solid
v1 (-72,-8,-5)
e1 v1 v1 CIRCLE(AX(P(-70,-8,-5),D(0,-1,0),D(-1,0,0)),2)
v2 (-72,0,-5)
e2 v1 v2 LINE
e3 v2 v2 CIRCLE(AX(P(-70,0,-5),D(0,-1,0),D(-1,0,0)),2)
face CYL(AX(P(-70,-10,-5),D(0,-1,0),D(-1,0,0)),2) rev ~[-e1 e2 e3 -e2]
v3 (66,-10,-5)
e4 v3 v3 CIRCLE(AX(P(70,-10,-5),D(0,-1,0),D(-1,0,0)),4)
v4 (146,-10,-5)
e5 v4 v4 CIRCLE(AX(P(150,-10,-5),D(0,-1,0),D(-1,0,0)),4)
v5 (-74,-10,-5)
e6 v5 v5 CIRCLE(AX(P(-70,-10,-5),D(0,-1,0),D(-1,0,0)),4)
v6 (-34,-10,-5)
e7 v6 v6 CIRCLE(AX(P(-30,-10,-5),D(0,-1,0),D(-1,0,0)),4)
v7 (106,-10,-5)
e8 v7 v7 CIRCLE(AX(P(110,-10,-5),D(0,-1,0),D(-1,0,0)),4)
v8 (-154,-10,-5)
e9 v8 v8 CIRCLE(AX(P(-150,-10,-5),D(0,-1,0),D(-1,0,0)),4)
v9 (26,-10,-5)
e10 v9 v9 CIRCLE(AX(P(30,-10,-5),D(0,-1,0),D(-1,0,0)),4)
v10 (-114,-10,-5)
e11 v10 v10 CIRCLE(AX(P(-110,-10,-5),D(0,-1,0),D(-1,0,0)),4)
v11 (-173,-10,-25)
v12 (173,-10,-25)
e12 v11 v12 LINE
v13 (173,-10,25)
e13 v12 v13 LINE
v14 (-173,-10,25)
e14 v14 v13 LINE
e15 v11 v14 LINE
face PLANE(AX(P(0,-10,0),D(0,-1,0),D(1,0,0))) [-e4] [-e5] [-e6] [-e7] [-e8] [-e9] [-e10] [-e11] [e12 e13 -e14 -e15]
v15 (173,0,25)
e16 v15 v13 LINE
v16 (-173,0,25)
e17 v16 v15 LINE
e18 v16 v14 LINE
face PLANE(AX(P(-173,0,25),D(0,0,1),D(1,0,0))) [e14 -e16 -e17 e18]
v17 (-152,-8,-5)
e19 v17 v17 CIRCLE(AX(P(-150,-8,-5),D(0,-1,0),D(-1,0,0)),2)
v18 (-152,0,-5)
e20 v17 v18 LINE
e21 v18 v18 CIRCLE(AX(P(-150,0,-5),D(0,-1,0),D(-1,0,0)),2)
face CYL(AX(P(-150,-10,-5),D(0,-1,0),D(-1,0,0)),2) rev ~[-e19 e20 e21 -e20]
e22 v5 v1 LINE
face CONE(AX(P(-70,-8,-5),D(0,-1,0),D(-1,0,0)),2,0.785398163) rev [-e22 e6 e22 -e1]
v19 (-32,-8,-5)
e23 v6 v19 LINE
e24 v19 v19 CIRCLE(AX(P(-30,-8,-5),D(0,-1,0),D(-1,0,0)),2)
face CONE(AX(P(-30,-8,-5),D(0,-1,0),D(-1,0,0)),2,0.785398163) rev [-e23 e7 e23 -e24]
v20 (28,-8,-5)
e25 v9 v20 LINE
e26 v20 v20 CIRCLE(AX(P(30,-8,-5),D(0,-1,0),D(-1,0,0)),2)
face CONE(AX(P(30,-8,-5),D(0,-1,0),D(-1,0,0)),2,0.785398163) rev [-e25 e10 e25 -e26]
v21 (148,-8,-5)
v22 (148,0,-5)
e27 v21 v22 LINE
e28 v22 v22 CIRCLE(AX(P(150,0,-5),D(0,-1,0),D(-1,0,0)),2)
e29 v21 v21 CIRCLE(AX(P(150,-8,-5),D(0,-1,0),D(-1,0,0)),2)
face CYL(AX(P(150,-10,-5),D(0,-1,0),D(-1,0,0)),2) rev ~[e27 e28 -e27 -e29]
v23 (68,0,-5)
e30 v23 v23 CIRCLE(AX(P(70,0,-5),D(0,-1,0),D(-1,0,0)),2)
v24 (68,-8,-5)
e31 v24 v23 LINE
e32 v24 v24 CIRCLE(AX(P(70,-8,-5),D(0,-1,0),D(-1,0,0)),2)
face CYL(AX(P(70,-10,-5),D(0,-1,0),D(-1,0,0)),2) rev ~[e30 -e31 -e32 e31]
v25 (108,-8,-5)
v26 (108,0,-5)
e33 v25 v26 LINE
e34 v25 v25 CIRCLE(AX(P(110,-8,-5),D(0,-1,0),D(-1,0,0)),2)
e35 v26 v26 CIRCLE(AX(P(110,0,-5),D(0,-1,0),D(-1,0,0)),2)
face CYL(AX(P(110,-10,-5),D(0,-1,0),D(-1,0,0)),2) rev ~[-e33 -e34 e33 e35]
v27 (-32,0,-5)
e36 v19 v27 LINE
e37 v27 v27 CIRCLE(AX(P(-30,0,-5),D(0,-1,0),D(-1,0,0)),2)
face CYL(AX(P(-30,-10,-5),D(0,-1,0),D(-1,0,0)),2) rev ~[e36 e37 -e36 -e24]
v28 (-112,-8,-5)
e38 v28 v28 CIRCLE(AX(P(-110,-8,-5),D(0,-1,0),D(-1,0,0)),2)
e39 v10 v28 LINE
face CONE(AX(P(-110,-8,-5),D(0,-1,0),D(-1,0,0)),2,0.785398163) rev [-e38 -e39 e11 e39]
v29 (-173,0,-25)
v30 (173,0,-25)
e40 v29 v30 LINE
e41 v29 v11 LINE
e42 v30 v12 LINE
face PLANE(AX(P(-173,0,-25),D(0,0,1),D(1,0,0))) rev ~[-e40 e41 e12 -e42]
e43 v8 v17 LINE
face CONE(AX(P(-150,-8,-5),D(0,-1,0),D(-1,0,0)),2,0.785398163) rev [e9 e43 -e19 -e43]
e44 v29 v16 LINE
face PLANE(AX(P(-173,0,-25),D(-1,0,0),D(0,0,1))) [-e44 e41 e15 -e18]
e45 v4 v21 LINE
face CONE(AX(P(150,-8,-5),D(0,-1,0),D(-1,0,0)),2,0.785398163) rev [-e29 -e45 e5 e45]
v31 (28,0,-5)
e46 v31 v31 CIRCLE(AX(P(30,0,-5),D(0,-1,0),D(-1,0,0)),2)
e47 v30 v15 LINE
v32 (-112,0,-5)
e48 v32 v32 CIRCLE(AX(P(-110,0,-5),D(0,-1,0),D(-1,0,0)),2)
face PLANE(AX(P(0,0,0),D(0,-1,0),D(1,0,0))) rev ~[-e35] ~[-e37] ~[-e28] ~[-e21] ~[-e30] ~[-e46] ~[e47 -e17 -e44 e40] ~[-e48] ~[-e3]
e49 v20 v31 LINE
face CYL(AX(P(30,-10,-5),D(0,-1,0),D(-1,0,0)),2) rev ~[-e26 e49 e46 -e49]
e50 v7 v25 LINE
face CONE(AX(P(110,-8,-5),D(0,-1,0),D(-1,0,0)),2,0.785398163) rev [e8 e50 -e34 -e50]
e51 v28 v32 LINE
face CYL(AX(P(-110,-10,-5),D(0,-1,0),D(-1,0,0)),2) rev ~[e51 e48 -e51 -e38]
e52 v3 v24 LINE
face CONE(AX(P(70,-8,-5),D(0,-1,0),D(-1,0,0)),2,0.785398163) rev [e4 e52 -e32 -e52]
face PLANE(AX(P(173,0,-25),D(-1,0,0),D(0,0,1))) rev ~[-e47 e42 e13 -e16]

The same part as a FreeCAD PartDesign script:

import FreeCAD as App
import Part
import Sketcher
from FreeCAD import Vector
Q = App.Units.Quantity


def edges_at(feature, points):
    """Names of the edges that pass closest to the given points."""
    edges = feature.Shape.Edges
    near = lambda p: min(range(len(edges)), key=lambda i: edges[i].distToShape(Part.Vertex(*p))[0])
    return sorted({f"Edge{near(p) + 1}" for p in points})

doc = App.newDocument("Part")
params = doc.addObject("Spreadsheet::Sheet", "Params")
for row, (alias, value) in enumerate([
    ("sketch1_width", "346 mm"),
    ("sketch1_height", "50 mm"),
    ("pad1_length", "10 mm"),
    ("sketch2_diameter", "4 mm"),
    ("chamfer_size", "2 mm"),
], start=1):
    params.set(f"A{row}", alias)
    params.set(f"B{row}", "=" + value)
    params.setAlias(f"B{row}", alias)

body = doc.addObject("PartDesign::Body", "Body")

# Sketch on XZ plane
sketch1 = body.newObject("Sketcher::SketchObject", "Sketch")
sketch1.AttachmentSupport = (doc.getObject("XZ_Plane"), [""])
sketch1.MapMode = "FlatFace"
sketch1.addGeometry(Part.LineSegment(Vector(-173, 25, 0), Vector(-173, -25, 0)), False)
sketch1.addGeometry(Part.LineSegment(Vector(-173, -25, 0), Vector(173, -25, 0)), False)
sketch1.addGeometry(Part.LineSegment(Vector(173, -25, 0), Vector(173, 25, 0)), False)
sketch1.addGeometry(Part.LineSegment(Vector(173, 25, 0), Vector(-173, 25, 0)), False)
sketch1.addConstraint(Sketcher.Constraint("Coincident", 0, 2, 1, 1))
sketch1.addConstraint(Sketcher.Constraint("Coincident", 1, 2, 2, 1))
sketch1.addConstraint(Sketcher.Constraint("Coincident", 2, 2, 3, 1))
sketch1.addConstraint(Sketcher.Constraint("Coincident", 3, 2, 0, 1))
sketch1.addConstraint(Sketcher.Constraint("Vertical", 0))
sketch1.addConstraint(Sketcher.Constraint("Horizontal", 1))
sketch1.addConstraint(Sketcher.Constraint("Vertical", 2))
sketch1.addConstraint(Sketcher.Constraint("Horizontal", 3))
sketch1.addConstraint(Sketcher.Constraint("Symmetric", 0, 2, 2, 2, -1, 1))
sketch1.addConstraint(Sketcher.Constraint("DistanceX", 1, 1, 1, 2, Q("346 mm")))
sketch1.addConstraint(Sketcher.Constraint("DistanceY", 0, 2, 0, 1, Q("50 mm")))
sketch1.setExpression("Constraints[9]", "Params.sketch1_width")
sketch1.setExpression("Constraints[10]", "Params.sketch1_height")
pad1 = body.newObject("PartDesign::Pad", "Pad")
pad1.Profile = sketch1
pad1.setExpression("Length", "Params.pad1_length")

# Sketch on XZ plane
sketch2 = body.newObject("Sketcher::SketchObject", "Sketch001")
sketch2.AttachmentSupport = (doc.getObject("XZ_Plane"), [""])
sketch2.MapMode = "FlatFace"
sketch2.AttachmentOffset = App.Placement(Vector(0, 0, 10), App.Rotation())
sketch2.addGeometry(Part.Circle(Vector(-150, -5, 0), Vector(0, 0, 1), 2), False)
sketch2.addGeometry(Part.Circle(Vector(-110, -5, 0), Vector(0, 0, 1), 2), False)
sketch2.addGeometry(Part.Circle(Vector(-70, -5, 0), Vector(0, 0, 1), 2), False)
sketch2.addGeometry(Part.Circle(Vector(-30, -5, 0), Vector(0, 0, 1), 2), False)
sketch2.addGeometry(Part.Circle(Vector(30, -5, 0), Vector(0, 0, 1), 2), False)
sketch2.addGeometry(Part.Circle(Vector(70, -5, 0), Vector(0, 0, 1), 2), False)
sketch2.addGeometry(Part.Circle(Vector(110, -5, 0), Vector(0, 0, 1), 2), False)
sketch2.addGeometry(Part.Circle(Vector(150, -5, 0), Vector(0, 0, 1), 2), False)
sketch2.addConstraint(Sketcher.Constraint("Equal", 0, 1))
sketch2.addConstraint(Sketcher.Constraint("Equal", 1, 2))
sketch2.addConstraint(Sketcher.Constraint("Equal", 2, 3))
sketch2.addConstraint(Sketcher.Constraint("Equal", 3, 4))
sketch2.addConstraint(Sketcher.Constraint("Equal", 4, 5))
sketch2.addConstraint(Sketcher.Constraint("Equal", 5, 6))
sketch2.addConstraint(Sketcher.Constraint("Equal", 6, 7))
sketch2.addConstraint(Sketcher.Constraint("Symmetric", 3, 3, 4, 3, -2))
sketch2.addConstraint(Sketcher.Constraint("Symmetric", 2, 3, 5, 3, -2))
sketch2.addConstraint(Sketcher.Constraint("Symmetric", 1, 3, 6, 3, -2))
sketch2.addConstraint(Sketcher.Constraint("Symmetric", 0, 3, 7, 3, -2))
sketch2.addConstraint(Sketcher.Constraint("Horizontal", 0, 3, 1, 3))
sketch2.addConstraint(Sketcher.Constraint("Horizontal", 1, 3, 2, 3))
sketch2.addConstraint(Sketcher.Constraint("Horizontal", 2, 3, 3, 3))
sketch2.addConstraint(Sketcher.Constraint("Diameter", 0, Q("4 mm")))
sketch2.addConstraint(Sketcher.Constraint("DistanceX", 0, 3, -1, 1, Q("150 mm")))
sketch2.addConstraint(Sketcher.Constraint("DistanceY", 0, 3, -1, 1, Q("5 mm")))
sketch2.addConstraint(Sketcher.Constraint("DistanceX", 1, 3, -1, 1, Q("110 mm")))
sketch2.addConstraint(Sketcher.Constraint("DistanceX", 2, 3, -1, 1, Q("70 mm")))
sketch2.addConstraint(Sketcher.Constraint("DistanceX", 3, 3, -1, 1, Q("30 mm")))
sketch2.setExpression("Constraints[14]", "Params.sketch2_diameter")
pocket1 = body.newObject("PartDesign::Pocket", "Pocket")
pocket1.Profile = sketch2
pocket1.Type = "ThroughAll"
doc.recompute()

chamfer = body.newObject("PartDesign::Chamfer", "Chamfer")
chamfer.Base = (pocket1, edges_at(pocket1, [
    (-148, -10, -5),
    (-108, -10, -5),
    (-68, -10, -5),
    (-28, -10, -5),
    (32, -10, -5),
    (72, -10, -5),
    (112, -10, -5),
    (152, -10, -5),
]))
chamfer.setExpression("Size", "Params.chamfer_size")

doc.recompute()
